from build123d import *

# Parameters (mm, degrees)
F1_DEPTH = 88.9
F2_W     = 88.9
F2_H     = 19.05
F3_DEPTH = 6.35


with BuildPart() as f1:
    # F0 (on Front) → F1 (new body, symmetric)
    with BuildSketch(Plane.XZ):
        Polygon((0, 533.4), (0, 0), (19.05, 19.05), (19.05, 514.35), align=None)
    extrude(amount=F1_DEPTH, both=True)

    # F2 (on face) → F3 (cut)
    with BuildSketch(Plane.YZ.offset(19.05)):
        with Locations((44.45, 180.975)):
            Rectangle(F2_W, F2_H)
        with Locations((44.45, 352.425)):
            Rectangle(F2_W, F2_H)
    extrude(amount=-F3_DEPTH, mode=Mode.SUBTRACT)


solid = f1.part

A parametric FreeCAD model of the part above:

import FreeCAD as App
import Part
import Sketcher
Q = App.Units.Quantity


def add_polygon(sketch, points):
    """Adds a closed chain of lines whose ends are joined by coincident constraints."""
    first, n = sketch.GeometryCount, len(points)
    for a, b in zip(points, points[1:] + points[:1]):
        sketch.addGeometry(Part.LineSegment(App.Vector(*a, 0), App.Vector(*b, 0)), False)
    for i in range(n):
        sketch.addConstraint(Sketcher.Constraint("Coincident", first + i, 2, first + (i + 1) % n, 1))

doc = App.newDocument("Part")
body = doc.addObject("PartDesign::Body", "Body")

sketch1 = doc.addObject("Sketcher::SketchObject", "Sketch")
body.addObject(sketch1)
sketch1.AttachmentSupport = (doc.XZ_Plane, [""])
sketch1.MapMode = "FlatFace"
add_polygon(sketch1, [(0, 533.4), (0, 0), (19.05, 19.05), (19.05, 514.35)])
sketch1.addConstraint([
    Sketcher.Constraint("Vertical", 0),
    Sketcher.Constraint("Vertical", 2),
    Sketcher.Constraint("Coincident", 0, 2, -1, 1),
    Sketcher.Constraint("Perpendicular", 1, 3),
    Sketcher.Constraint("Equal", 1, 3),
    Sketcher.Constraint("DistanceY", 0, 2, 0, 1, Q("21 in")),
    Sketcher.Constraint("DistanceY", 2, 1, 2, 2, Q("19.5 in")),
])
pad1 = doc.addObject("PartDesign::Pad", "Pad")
body.addObject(pad1)
pad1.Profile = sketch1
pad1.Length = Q("7 in")
pad1.Midplane = True

sketch2 = doc.addObject("Sketcher::SketchObject", "Sketch001")
body.addObject(sketch2)
sketch2.AttachmentSupport = (doc.YZ_Plane, [""])
sketch2.MapMode = "FlatFace"
sketch2.AttachmentOffset = App.Placement(App.Vector(0, 0, 0.75 * 25.4), App.Rotation())
add_polygon(sketch2, [(0, 190.5), (0, 171.45), (88.9, 171.45), (88.9, 190.5)])
add_polygon(sketch2, [(0, 361.95), (0, 342.9), (88.9, 342.9), (88.9, 361.95)])
sketch2.addConstraint([
    Sketcher.Constraint("Vertical", 0),
    Sketcher.Constraint("Horizontal", 1),
    Sketcher.Constraint("Vertical", 2),
    Sketcher.Constraint("Horizontal", 3),
    Sketcher.Constraint("Vertical", 4),
    Sketcher.Constraint("Horizontal", 5),
    Sketcher.Constraint("Vertical", 6),
    Sketcher.Constraint("Horizontal", 7),
    Sketcher.Constraint("PointOnObject", 0, 2, -2),
    Sketcher.Constraint("PointOnObject", 4, 2, -2),
    Sketcher.Constraint("Vertical", 2, 2, 5, 2),
    Sketcher.Constraint("Equal", 2, 4),
    Sketcher.Constraint("DistanceX", 1, 1, 1, 2, Q("3.5 in")),
    Sketcher.Constraint("DistanceY", 3, 2, 4, 2, Q("6 in")),
    Sketcher.Constraint("DistanceY", 0, 2, 0, 1, Q("0.75 in")),
    Sketcher.Constraint("DistanceY", -1, 1, 2, 2, Q("7.5 in")),
])
pocket1 = doc.addObject("PartDesign::Pocket", "Pocket")
body.addObject(pocket1)
pocket1.Profile = sketch2
pocket1.Length = Q("0.25 in")

doc.recompute()
